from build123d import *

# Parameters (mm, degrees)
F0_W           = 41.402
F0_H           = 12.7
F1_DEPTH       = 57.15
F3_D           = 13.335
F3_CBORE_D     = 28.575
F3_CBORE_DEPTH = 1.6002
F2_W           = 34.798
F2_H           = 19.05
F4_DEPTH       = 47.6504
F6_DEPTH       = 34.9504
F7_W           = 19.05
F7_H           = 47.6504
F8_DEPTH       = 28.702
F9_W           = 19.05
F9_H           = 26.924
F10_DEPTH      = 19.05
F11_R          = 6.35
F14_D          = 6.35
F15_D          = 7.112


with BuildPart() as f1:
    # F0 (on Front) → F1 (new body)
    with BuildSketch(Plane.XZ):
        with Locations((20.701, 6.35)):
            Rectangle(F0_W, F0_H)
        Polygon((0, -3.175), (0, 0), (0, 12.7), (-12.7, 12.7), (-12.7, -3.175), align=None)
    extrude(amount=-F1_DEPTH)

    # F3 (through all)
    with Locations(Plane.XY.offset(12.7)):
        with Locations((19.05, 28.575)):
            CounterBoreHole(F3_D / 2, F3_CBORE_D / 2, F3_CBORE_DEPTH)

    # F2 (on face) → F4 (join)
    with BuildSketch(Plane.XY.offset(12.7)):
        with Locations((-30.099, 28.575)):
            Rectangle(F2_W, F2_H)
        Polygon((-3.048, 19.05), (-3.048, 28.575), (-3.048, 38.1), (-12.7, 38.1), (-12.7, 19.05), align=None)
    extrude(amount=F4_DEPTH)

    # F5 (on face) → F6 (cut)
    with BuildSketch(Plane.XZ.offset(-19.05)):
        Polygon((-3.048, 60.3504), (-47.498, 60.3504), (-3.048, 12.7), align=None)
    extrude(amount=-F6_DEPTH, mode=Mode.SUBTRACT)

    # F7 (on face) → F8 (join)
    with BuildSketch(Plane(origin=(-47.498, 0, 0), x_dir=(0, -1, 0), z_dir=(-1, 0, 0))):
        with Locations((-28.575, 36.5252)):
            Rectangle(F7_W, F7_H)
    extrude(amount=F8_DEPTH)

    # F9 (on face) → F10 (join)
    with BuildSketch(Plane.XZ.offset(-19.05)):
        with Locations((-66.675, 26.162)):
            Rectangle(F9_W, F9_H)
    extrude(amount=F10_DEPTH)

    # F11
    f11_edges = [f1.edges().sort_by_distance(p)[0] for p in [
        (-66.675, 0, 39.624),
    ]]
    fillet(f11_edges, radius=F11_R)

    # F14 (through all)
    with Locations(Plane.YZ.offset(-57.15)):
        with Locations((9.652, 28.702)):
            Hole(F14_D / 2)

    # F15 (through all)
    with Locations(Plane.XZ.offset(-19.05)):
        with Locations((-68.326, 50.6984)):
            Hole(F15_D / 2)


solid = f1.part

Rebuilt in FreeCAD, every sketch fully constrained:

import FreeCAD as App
import Part
import Sketcher
Q = App.Units.Quantity


def edges_at(feature, points):
    """Names of the edges that pass closest to the given points."""
    edges = feature.Shape.Edges
    near = lambda p: min(range(len(edges)), key=lambda i: edges[i].distToShape(Part.Vertex(*p))[0])
    return sorted({f"Edge{near(p) + 1}" for p in points})

doc = App.newDocument("Part")
body = doc.addObject("PartDesign::Body", "Body")

sketch1 = body.newObject("Sketcher::SketchObject", "Sketch")
sketch1.AttachmentSupport = (doc.getObject("XZ_Plane"), [""])
sketch1.MapMode = "FlatFace"
sketch1.addGeometry([
    Part.LineSegment(App.Vector(0, 0, 0), App.Vector(41.4, 0, 0)),
    Part.LineSegment(App.Vector(41.4, 0, 0), App.Vector(41.4, 12.7, 0)),
    Part.LineSegment(App.Vector(41.4, 12.7, 0), App.Vector(-12.7, 12.7, 0)),
    Part.LineSegment(App.Vector(-12.7, 12.7, 0), App.Vector(-12.7, -3.2, 0)),
    Part.LineSegment(App.Vector(-12.7, -3.2, 0), App.Vector(0, -3.2, 0)),
    Part.LineSegment(App.Vector(0, -3.2, 0), App.Vector(0, 0, 0)),
], False)
sketch1.addConstraint([
    Sketcher.Constraint("Coincident", 0, 2, 1, 1),
    Sketcher.Constraint("Coincident", 1, 2, 2, 1),
    Sketcher.Constraint("Coincident", 2, 2, 3, 1),
    Sketcher.Constraint("Coincident", 3, 2, 4, 1),
    Sketcher.Constraint("Coincident", 4, 2, 5, 1),
    Sketcher.Constraint("Coincident", 5, 2, 0, 1),
    Sketcher.Constraint("Horizontal", 0),
    Sketcher.Constraint("Vertical", 1),
    Sketcher.Constraint("Horizontal", 2),
    Sketcher.Constraint("Vertical", 3),
    Sketcher.Constraint("Horizontal", 4),
    Sketcher.Constraint("Vertical", 5),
    Sketcher.Constraint("Coincident", 5, 2, -1, 1),
    Sketcher.Constraint("Equal", 4, 1),
    Sketcher.Constraint("DistanceX", 4, 1, 4, 2, Q("0.5 in")),
    Sketcher.Constraint("DistanceX", 0, 1, 0, 2, Q("1.63 in")),
    Sketcher.Constraint("DistanceY", 3, 2, 3, 1, Q("0.625 in")),
])
pad1 = body.newObject("PartDesign::Pad", "Pad")
pad1.Profile = sketch1
pad1.Length = Q("2.25 in")
pad1.Reversed = True

sketch2 = body.newObject("Sketcher::SketchObject", "Sketch001")
sketch2.AttachmentSupport = (doc.getObject("XY_Plane"), [""])
sketch2.MapMode = "FlatFace"
sketch2.AttachmentOffset = App.Placement(App.Vector(0, 0, 0.5 * 25.4), App.Rotation())
sketch2.addGeometry(Part.Circle(App.Vector(19, 29, 0), App.Vector(0, 0, 1), 7), False)
sketch2.addConstraint([
    Sketcher.Constraint("Diameter", 0, Q("0.525 in")),
    Sketcher.Constraint("DistanceX", -1, 1, 0, 3, Q("0.75 in")),
    Sketcher.Constraint("DistanceY", -1, 1, 0, 3, Q("1.125 in")),
])
doc.recompute()
hole = body.newObject("PartDesign::Hole", "Hole")
hole.Profile = sketch2
hole.ThreadType = "None"
hole.Diameter = Q("0.525 in")
hole.DepthType = "ThroughAll"
hole.HoleCutType = "Counterbore"
hole.HoleCutDiameter = Q("1.125 in")
hole.HoleCutDepth = Q("0.063 in")

sketch3 = body.newObject("Sketcher::SketchObject", "Sketch002")
sketch3.AttachmentSupport = (doc.getObject("XY_Plane"), [""])
sketch3.MapMode = "FlatFace"
sketch3.AttachmentOffset = App.Placement(App.Vector(0, 0, 0.5 * 25.4), App.Rotation())
sketch3.addGeometry([
    Part.LineSegment(App.Vector(-47, 38, 0), App.Vector(-47, 19, 0)),
    Part.LineSegment(App.Vector(-47, 19, 0), App.Vector(-3, 19, 0)),
    Part.LineSegment(App.Vector(-3, 19, 0), App.Vector(-3, 38, 0)),
    Part.LineSegment(App.Vector(-3, 38, 0), App.Vector(-47, 38, 0)),
], False)
sketch3.addConstraint([
    Sketcher.Constraint("Coincident", 0, 2, 1, 1),
    Sketcher.Constraint("Coincident", 1, 2, 2, 1),
    Sketcher.Constraint("Coincident", 2, 2, 3, 1),
    Sketcher.Constraint("Coincident", 3, 2, 0, 1),
    Sketcher.Constraint("Vertical", 0),
    Sketcher.Constraint("Horizontal", 1),
    Sketcher.Constraint("Vertical", 2),
    Sketcher.Constraint("Horizontal", 3),
    Sketcher.Constraint("DistanceX", 1, 1, 1, 2, Q("1.75 in")),
    Sketcher.Constraint("DistanceY", 0, 2, 0, 1, Q("0.75 in")),
    Sketcher.Constraint("DistanceY", -1, 1, 2, 2, Q("1.5 in")),
    Sketcher.Constraint("DistanceX", 0, 2, -1, 1, Q("1.87 in")),
])
pad2 = body.newObject("PartDesign::Pad", "Pad001")
pad2.Profile = sketch3
pad2.Length = Q("1.876 in")

sketch4 = body.newObject("Sketcher::SketchObject", "Sketch003")
sketch4.AttachmentSupport = (doc.getObject("XZ_Plane"), [""])
sketch4.MapMode = "FlatFace"
sketch4.AttachmentOffset = App.Placement(App.Vector(0, 0, -0.75 * 25.4), App.Rotation())
sketch4.addGeometry([
    Part.LineSegment(App.Vector(-3, 60, 0), App.Vector(-47, 60, 0)),
    Part.LineSegment(App.Vector(-47, 60, 0), App.Vector(-3, 13, 0)),
    Part.LineSegment(App.Vector(-3, 13, 0), App.Vector(-3, 60, 0)),
], False)
sketch4.addConstraint([
    Sketcher.Constraint("Coincident", 0, 2, 1, 1),
    Sketcher.Constraint("Coincident", 1, 2, 2, 1),
    Sketcher.Constraint("Coincident", 2, 2, 0, 1),
    Sketcher.Constraint("Horizontal", 0),
    Sketcher.Constraint("Vertical", 2),
    Sketcher.Constraint("DistanceX", 0, 2, 0, 1, Q("1.75 in")),
    Sketcher.Constraint("DistanceY", -1, 1, 1, 2, Q("0.5 in")),
    Sketcher.Constraint("DistanceY", 2, 1, 2, 2, Q("1.876 in")),
    Sketcher.Constraint("DistanceX", 0, 2, -1, 1, Q("1.87 in")),
])
pocket1 = body.newObject("PartDesign::Pocket", "Pocket")
pocket1.Profile = sketch4
pocket1.Length = Q("1.376 in")

sketch5 = body.newObject("Sketcher::SketchObject", "Sketch004")
sketch5.AttachmentSupport = (doc.getObject("YZ_Plane"), [""])
sketch5.MapMode = "FlatFace"
sketch5.AttachmentOffset = App.Placement(App.Vector(0, 0, -1.87 * 25.4), App.Rotation())
sketch5.addGeometry([
    Part.LineSegment(App.Vector(38, 60, 0), App.Vector(38, 13, 0)),
    Part.LineSegment(App.Vector(38, 13, 0), App.Vector(19, 13, 0)),
    Part.LineSegment(App.Vector(19, 13, 0), App.Vector(19, 60, 0)),
    Part.LineSegment(App.Vector(19, 60, 0), App.Vector(38, 60, 0)),
], False)
sketch5.addConstraint([
    Sketcher.Constraint("Coincident", 0, 2, 1, 1),
    Sketcher.Constraint("Coincident", 1, 2, 2, 1),
    Sketcher.Constraint("Coincident", 2, 2, 3, 1),
    Sketcher.Constraint("Coincident", 3, 2, 0, 1),
    Sketcher.Constraint("Vertical", 0),
    Sketcher.Constraint("Horizontal", 1),
    Sketcher.Constraint("Vertical", 2),
    Sketcher.Constraint("Horizontal", 3),
    Sketcher.Constraint("DistanceX", 1, 2, 1, 1, Q("0.75 in")),
    Sketcher.Constraint("DistanceX", -1, 1, 0, 2, Q("1.5 in")),
    Sketcher.Constraint("DistanceY", -1, 1, 0, 2, Q("0.5 in")),
    Sketcher.Constraint("DistanceY", 0, 2, 0, 1, Q("1.876 in")),
])
pad3 = body.newObject("PartDesign::Pad", "Pad002")
pad3.Profile = sketch5
pad3.Length = Q("1.13 in")
pad3.Reversed = True

sketch6 = body.newObject("Sketcher::SketchObject", "Sketch005")
sketch6.AttachmentSupport = (doc.getObject("XZ_Plane"), [""])
sketch6.MapMode = "FlatFace"
sketch6.AttachmentOffset = App.Placement(App.Vector(0, 0, -0.75 * 25.4), App.Rotation())
sketch6.addGeometry([
    Part.LineSegment(App.Vector(-76, 40, 0), App.Vector(-76, 13, 0)),
    Part.LineSegment(App.Vector(-76, 13, 0), App.Vector(-57, 13, 0)),
    Part.LineSegment(App.Vector(-57, 13, 0), App.Vector(-57, 40, 0)),
    Part.LineSegment(App.Vector(-57, 40, 0), App.Vector(-76, 40, 0)),
], False)
sketch6.addConstraint([
    Sketcher.Constraint("Coincident", 0, 2, 1, 1),
    Sketcher.Constraint("Coincident", 1, 2, 2, 1),
    Sketcher.Constraint("Coincident", 2, 2, 3, 1),
    Sketcher.Constraint("Coincident", 3, 2, 0, 1),
    Sketcher.Constraint("Vertical", 0),
    Sketcher.Constraint("Horizontal", 1),
    Sketcher.Constraint("Vertical", 2),
    Sketcher.Constraint("Horizontal", 3),
    Sketcher.Constraint("DistanceX", 0, 2, -1, 1, Q("3 in")),
    Sketcher.Constraint("DistanceX", 1, 1, 1, 2, Q("0.75 in")),
    Sketcher.Constraint("DistanceY", 0, 2, 0, 1, Q("1.06 in")),
    Sketcher.Constraint("DistanceY", -1, 1, 0, 2, Q("0.5 in")),
])
pad4 = body.newObject("PartDesign::Pad", "Pad003")
pad4.Profile = sketch6
pad4.Length = Q("0.75 in")
doc.recompute()

fillet = body.newObject("PartDesign::Fillet", "Fillet")
fillet.Base = (pad4, edges_at(pad4, [(-66.675, 0, 39.624)]))
fillet.Radius = Q("0.25 in")

sketch7 = body.newObject("Sketcher::SketchObject", "Sketch006")
sketch7.AttachmentSupport = (doc.getObject("YZ_Plane"), [""])
sketch7.MapMode = "FlatFace"
sketch7.AttachmentOffset = App.Placement(App.Vector(0, 0, -2.25 * 25.4), App.Rotation())
sketch7.addGeometry(Part.Circle(App.Vector(9.7, 28.7, 0), App.Vector(0, 0, 1), 3.2), False)
sketch7.addConstraint([
    Sketcher.Constraint("Diameter", 0, Q("0.25 in")),
    Sketcher.Constraint("DistanceX", -1, 1, 0, 3, Q("0.38 in")),
    Sketcher.Constraint("DistanceY", -1, 1, 0, 3, Q("1.13 in")),
])
doc.recompute()
hole2 = body.newObject("PartDesign::Hole", "Hole001")
hole2.Profile = sketch7
hole2.ThreadType = "None"
hole2.Diameter = Q("0.25 in")
hole2.DepthType = "ThroughAll"

sketch8 = body.newObject("Sketcher::SketchObject", "Sketch007")
sketch8.AttachmentSupport = (doc.getObject("XZ_Plane"), [""])
sketch8.MapMode = "FlatFace"
sketch8.AttachmentOffset = App.Placement(App.Vector(0, 0, -0.75 * 25.4), App.Rotation())
sketch8.addGeometry(Part.Circle(App.Vector(-68.3, 50.7, 0), App.Vector(0, 0, 1), 3.6), False)
sketch8.addConstraint([
    Sketcher.Constraint("Diameter", 0, Q("0.28 in")),
    Sketcher.Constraint("DistanceX", 0, 3, -1, 1, Q("2.69 in")),
    Sketcher.Constraint("DistanceY", -1, 1, 0, 3, Q("1.996 in")),
])
doc.recompute()
hole3 = body.newObject("PartDesign::Hole", "Hole002")
hole3.Profile = sketch8
hole3.ThreadType = "None"
hole3.Diameter = Q("0.28 in")
hole3.DepthType = "ThroughAll"

doc.recompute()
